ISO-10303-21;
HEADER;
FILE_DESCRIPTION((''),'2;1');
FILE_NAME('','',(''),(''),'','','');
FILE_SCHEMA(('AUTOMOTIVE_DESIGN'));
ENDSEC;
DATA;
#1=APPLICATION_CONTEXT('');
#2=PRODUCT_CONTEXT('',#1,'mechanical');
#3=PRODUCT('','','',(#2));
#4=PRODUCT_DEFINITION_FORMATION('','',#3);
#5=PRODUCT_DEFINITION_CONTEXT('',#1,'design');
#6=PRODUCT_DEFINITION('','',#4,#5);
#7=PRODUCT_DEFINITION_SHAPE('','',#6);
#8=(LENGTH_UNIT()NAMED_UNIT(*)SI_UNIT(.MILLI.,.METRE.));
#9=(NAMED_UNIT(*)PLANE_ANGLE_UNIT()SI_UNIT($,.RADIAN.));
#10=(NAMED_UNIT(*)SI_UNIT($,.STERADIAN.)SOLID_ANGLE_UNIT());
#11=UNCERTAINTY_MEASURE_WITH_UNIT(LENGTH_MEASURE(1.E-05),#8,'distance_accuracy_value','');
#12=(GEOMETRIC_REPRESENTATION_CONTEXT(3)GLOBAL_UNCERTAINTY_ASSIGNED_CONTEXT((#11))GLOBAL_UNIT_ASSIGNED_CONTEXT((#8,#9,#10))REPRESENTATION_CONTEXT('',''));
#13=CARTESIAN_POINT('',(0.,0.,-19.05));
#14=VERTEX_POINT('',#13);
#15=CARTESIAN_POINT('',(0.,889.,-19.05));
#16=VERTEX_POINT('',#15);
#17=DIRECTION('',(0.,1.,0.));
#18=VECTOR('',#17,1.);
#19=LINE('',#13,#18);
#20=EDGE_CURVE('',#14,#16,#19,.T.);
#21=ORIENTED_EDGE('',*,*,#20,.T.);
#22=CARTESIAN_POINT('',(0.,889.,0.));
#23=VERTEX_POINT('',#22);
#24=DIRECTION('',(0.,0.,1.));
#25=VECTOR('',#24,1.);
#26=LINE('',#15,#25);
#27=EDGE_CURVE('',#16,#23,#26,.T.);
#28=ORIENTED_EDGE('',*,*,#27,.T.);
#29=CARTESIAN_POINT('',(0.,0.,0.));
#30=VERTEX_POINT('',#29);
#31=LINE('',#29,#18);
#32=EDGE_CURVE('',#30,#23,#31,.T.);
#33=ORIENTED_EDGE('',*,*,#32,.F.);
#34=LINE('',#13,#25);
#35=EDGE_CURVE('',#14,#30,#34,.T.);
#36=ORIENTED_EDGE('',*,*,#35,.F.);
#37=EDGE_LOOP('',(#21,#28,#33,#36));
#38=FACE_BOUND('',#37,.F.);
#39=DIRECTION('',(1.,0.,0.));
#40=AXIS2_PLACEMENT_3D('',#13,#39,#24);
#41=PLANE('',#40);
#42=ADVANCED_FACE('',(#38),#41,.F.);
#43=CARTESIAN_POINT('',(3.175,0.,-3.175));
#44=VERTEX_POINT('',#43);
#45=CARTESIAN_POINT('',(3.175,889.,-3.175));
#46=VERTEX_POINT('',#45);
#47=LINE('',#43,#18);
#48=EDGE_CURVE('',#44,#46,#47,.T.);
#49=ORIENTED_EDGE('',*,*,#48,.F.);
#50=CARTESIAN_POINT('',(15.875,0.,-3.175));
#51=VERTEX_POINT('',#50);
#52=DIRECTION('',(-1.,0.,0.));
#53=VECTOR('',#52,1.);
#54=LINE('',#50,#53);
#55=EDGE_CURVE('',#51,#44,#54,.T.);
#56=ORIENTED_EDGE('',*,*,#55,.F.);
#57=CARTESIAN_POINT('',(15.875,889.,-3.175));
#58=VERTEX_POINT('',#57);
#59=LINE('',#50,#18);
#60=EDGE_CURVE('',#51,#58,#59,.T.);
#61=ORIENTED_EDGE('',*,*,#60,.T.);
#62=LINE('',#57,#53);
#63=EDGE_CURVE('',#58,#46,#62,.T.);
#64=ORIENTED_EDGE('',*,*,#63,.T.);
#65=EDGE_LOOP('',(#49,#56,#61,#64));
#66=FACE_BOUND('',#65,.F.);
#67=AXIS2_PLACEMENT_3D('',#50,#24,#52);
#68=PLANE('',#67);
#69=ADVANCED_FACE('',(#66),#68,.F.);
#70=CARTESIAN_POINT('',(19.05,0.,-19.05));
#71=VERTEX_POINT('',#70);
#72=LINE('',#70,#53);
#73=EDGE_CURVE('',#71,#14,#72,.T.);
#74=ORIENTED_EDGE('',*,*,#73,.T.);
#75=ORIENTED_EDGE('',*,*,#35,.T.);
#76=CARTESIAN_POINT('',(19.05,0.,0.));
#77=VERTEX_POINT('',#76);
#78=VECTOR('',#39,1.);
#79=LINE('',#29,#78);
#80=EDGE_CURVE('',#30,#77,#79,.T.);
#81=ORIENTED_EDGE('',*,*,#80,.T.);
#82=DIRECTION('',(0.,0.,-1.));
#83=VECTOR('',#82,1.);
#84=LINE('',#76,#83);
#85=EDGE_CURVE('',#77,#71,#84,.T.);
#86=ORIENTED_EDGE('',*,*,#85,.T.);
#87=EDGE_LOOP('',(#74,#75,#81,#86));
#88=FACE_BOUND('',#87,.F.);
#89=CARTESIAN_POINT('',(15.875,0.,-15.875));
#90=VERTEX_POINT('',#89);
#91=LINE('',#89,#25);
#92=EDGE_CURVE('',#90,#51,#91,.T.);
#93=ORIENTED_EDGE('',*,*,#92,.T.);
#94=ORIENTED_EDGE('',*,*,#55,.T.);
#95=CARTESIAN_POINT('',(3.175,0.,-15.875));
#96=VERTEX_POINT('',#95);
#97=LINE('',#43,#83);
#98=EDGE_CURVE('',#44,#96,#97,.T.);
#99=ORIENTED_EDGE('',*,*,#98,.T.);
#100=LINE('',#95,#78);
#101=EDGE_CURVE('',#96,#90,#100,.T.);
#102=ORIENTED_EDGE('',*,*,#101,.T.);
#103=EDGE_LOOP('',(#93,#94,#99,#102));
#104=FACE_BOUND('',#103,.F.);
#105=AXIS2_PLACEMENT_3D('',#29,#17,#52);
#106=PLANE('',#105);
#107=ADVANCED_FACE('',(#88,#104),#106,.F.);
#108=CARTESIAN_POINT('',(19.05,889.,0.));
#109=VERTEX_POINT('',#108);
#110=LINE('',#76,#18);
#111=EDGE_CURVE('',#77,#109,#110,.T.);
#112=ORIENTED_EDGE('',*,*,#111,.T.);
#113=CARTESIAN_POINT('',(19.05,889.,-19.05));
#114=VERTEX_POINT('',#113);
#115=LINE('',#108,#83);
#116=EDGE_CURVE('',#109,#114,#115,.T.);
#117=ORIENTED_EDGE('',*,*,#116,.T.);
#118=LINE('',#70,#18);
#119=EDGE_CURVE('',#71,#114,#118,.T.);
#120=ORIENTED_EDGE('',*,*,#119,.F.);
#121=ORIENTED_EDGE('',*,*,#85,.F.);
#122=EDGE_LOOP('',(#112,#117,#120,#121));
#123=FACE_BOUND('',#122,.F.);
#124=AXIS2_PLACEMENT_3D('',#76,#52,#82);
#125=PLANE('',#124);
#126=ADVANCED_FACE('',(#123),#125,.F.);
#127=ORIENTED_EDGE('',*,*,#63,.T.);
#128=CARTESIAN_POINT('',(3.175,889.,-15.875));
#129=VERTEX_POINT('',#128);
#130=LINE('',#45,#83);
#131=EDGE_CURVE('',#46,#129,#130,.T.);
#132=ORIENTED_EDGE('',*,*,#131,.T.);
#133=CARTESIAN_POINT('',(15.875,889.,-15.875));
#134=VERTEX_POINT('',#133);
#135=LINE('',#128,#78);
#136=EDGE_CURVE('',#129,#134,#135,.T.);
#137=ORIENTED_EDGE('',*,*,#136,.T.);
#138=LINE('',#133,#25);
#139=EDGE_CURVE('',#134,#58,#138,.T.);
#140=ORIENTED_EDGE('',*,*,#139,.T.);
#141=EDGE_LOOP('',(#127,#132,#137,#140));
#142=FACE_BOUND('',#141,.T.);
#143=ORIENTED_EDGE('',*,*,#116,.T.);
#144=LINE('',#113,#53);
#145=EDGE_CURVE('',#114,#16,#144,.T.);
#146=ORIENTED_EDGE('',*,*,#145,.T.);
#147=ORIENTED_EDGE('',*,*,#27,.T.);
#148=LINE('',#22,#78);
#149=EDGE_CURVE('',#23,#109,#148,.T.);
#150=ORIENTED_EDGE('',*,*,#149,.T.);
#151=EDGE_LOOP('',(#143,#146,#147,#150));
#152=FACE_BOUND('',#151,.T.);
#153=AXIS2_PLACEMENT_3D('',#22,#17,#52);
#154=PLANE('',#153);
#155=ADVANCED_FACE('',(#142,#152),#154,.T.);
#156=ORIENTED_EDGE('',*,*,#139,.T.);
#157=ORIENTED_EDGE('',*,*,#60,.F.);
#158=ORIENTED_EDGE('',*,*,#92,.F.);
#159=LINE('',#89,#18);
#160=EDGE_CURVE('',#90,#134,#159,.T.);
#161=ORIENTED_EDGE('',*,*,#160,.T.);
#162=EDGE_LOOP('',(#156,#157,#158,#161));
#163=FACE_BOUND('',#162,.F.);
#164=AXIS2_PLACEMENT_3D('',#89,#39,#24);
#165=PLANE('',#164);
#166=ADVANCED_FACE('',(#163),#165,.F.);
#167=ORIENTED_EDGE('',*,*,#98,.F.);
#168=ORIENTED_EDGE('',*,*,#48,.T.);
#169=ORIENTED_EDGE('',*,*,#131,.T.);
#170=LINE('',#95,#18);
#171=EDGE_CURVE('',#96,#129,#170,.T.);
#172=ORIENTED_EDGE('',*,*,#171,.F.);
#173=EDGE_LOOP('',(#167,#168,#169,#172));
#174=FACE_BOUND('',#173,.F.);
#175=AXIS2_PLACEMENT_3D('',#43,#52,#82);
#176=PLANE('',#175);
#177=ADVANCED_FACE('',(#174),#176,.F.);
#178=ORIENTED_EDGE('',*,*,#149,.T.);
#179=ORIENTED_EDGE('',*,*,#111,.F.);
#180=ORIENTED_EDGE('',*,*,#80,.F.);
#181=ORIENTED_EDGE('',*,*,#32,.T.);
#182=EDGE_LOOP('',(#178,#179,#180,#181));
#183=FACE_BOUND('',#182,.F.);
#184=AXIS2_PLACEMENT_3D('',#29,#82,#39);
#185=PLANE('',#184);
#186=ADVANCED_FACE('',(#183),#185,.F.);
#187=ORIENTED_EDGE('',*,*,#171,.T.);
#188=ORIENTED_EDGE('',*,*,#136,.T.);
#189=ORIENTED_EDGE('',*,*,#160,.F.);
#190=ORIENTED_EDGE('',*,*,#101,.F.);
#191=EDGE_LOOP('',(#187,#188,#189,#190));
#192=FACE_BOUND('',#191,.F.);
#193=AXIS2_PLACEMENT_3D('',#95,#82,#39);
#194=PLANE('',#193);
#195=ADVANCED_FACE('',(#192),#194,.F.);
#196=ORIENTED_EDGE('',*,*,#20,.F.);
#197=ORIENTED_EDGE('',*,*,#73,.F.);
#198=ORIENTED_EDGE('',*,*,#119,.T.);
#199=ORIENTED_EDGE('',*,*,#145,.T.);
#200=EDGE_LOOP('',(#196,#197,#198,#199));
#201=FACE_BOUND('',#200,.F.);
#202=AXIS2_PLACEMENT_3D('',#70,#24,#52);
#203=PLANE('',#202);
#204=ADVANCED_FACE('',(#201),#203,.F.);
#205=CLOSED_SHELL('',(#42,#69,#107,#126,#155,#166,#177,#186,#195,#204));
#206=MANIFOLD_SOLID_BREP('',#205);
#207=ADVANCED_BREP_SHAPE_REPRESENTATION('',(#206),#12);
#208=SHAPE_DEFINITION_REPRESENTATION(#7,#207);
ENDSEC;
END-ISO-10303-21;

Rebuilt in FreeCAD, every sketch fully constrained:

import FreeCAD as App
import Part
import Sketcher
from FreeCAD import Vector
Q = App.Units.Quantity


def add_polygon(sketch, points):
    """Adds a closed chain of lines whose ends are joined by coincident constraints."""
    first, n = sketch.GeometryCount, len(points)
    for a, b in zip(points, points[1:] + points[:1]):
        sketch.addGeometry(Part.LineSegment(App.Vector(*a, 0), App.Vector(*b, 0)), False)
    for i in range(n):
        sketch.addConstraint(Sketcher.Constraint("Coincident", first + i, 2, first + (i + 1) % n, 1))

doc = App.newDocument("Part")
params = doc.addObject("Spreadsheet::Sheet", "Params")
for row, (alias, value) in enumerate([
    ("sketch1_width", "0.75 in"),
    ("sketch1_width2", "0.5 in"),
    ("pad1_length", "35 in"),
], start=1):
    params.set(f"A{row}", alias)
    params.set(f"B{row}", "=" + value)
    params.setAlias(f"B{row}", alias)

body = doc.addObject("PartDesign::Body", "Body")

sketch1 = doc.addObject("Sketcher::SketchObject", "Sketch")
body.addObject(sketch1)
sketch1.AttachmentSupport = (doc.XZ_Plane, [""])
sketch1.MapMode = "FlatFace"
add_polygon(sketch1, [(0, -19), (0, 0), (19, 0), (19, -19)])
add_polygon(sketch1, [(3, -3), (3, -16), (16, -16), (16, -3)])
sketch1.addConstraint([
    Sketcher.Constraint("Vertical", 0),
    Sketcher.Constraint("Horizontal", 1),
    Sketcher.Constraint("Vertical", 2),
    Sketcher.Constraint("Horizontal", 3),
    Sketcher.Constraint("Vertical", 4),
    Sketcher.Constraint("Horizontal", 5),
    Sketcher.Constraint("Vertical", 6),
    Sketcher.Constraint("Horizontal", 7),
    Sketcher.Constraint("Coincident", 0, 2, -1, 1),
    Sketcher.Constraint("Equal", 3, 0),
    Sketcher.Constraint("Equal", 7, 4),
    Sketcher.Constraint("DistanceX", 1, 1, 1, 2, Q("0.75 in")),
    Sketcher.Constraint("DistanceX", 5, 1, 5, 2, Q("0.5 in")),
    Sketcher.Constraint("DistanceX", -1, 1, 4, 2, Q("0.125 in")),
    Sketcher.Constraint("DistanceY", 6, 2, -1, 1, Q("0.125 in")),
])
sketch1.setExpression("Constraints[19]", "Params.sketch1_width")
sketch1.setExpression("Constraints[20]", "Params.sketch1_width2")
pad1 = doc.addObject("PartDesign::Pad", "Pad")
body.addObject(pad1)
pad1.Profile = sketch1
pad1.setExpression("Length", "Params.pad1_length")
pad1.Reversed = True

doc.recompute()
